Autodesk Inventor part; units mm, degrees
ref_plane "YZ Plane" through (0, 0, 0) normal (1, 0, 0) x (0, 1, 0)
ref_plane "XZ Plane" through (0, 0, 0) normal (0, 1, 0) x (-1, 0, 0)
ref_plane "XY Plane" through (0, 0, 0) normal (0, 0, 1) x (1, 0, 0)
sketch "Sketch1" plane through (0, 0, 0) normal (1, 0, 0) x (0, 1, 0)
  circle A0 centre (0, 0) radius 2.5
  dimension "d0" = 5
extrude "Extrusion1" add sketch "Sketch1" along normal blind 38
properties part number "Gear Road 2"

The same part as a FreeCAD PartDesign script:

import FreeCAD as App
import Part
import Sketcher
from FreeCAD import Vector

doc = App.newDocument("Part")
body = doc.addObject("PartDesign::Body", "Body")

# Sketch on YZ plane
sketch1 = body.newObject("Sketcher::SketchObject", "Sketch")
sketch1.AttachmentSupport = (doc.getObject("YZ_Plane"), [""])
sketch1.MapMode = "FlatFace"
sketch1.addGeometry(Part.Circle(Vector(0, 0, 0), Vector(0, 0, 1), 2.5), False)
sketch1.addConstraint([
    Sketcher.Constraint("Coincident", 0, 3, -1, 1),
    Sketcher.Constraint("Diameter", 0, 5.0),
])
pad1 = body.newObject("PartDesign::Pad", "Pad")
pad1.Profile = sketch1
pad1.Length = 38

doc.recompute()
